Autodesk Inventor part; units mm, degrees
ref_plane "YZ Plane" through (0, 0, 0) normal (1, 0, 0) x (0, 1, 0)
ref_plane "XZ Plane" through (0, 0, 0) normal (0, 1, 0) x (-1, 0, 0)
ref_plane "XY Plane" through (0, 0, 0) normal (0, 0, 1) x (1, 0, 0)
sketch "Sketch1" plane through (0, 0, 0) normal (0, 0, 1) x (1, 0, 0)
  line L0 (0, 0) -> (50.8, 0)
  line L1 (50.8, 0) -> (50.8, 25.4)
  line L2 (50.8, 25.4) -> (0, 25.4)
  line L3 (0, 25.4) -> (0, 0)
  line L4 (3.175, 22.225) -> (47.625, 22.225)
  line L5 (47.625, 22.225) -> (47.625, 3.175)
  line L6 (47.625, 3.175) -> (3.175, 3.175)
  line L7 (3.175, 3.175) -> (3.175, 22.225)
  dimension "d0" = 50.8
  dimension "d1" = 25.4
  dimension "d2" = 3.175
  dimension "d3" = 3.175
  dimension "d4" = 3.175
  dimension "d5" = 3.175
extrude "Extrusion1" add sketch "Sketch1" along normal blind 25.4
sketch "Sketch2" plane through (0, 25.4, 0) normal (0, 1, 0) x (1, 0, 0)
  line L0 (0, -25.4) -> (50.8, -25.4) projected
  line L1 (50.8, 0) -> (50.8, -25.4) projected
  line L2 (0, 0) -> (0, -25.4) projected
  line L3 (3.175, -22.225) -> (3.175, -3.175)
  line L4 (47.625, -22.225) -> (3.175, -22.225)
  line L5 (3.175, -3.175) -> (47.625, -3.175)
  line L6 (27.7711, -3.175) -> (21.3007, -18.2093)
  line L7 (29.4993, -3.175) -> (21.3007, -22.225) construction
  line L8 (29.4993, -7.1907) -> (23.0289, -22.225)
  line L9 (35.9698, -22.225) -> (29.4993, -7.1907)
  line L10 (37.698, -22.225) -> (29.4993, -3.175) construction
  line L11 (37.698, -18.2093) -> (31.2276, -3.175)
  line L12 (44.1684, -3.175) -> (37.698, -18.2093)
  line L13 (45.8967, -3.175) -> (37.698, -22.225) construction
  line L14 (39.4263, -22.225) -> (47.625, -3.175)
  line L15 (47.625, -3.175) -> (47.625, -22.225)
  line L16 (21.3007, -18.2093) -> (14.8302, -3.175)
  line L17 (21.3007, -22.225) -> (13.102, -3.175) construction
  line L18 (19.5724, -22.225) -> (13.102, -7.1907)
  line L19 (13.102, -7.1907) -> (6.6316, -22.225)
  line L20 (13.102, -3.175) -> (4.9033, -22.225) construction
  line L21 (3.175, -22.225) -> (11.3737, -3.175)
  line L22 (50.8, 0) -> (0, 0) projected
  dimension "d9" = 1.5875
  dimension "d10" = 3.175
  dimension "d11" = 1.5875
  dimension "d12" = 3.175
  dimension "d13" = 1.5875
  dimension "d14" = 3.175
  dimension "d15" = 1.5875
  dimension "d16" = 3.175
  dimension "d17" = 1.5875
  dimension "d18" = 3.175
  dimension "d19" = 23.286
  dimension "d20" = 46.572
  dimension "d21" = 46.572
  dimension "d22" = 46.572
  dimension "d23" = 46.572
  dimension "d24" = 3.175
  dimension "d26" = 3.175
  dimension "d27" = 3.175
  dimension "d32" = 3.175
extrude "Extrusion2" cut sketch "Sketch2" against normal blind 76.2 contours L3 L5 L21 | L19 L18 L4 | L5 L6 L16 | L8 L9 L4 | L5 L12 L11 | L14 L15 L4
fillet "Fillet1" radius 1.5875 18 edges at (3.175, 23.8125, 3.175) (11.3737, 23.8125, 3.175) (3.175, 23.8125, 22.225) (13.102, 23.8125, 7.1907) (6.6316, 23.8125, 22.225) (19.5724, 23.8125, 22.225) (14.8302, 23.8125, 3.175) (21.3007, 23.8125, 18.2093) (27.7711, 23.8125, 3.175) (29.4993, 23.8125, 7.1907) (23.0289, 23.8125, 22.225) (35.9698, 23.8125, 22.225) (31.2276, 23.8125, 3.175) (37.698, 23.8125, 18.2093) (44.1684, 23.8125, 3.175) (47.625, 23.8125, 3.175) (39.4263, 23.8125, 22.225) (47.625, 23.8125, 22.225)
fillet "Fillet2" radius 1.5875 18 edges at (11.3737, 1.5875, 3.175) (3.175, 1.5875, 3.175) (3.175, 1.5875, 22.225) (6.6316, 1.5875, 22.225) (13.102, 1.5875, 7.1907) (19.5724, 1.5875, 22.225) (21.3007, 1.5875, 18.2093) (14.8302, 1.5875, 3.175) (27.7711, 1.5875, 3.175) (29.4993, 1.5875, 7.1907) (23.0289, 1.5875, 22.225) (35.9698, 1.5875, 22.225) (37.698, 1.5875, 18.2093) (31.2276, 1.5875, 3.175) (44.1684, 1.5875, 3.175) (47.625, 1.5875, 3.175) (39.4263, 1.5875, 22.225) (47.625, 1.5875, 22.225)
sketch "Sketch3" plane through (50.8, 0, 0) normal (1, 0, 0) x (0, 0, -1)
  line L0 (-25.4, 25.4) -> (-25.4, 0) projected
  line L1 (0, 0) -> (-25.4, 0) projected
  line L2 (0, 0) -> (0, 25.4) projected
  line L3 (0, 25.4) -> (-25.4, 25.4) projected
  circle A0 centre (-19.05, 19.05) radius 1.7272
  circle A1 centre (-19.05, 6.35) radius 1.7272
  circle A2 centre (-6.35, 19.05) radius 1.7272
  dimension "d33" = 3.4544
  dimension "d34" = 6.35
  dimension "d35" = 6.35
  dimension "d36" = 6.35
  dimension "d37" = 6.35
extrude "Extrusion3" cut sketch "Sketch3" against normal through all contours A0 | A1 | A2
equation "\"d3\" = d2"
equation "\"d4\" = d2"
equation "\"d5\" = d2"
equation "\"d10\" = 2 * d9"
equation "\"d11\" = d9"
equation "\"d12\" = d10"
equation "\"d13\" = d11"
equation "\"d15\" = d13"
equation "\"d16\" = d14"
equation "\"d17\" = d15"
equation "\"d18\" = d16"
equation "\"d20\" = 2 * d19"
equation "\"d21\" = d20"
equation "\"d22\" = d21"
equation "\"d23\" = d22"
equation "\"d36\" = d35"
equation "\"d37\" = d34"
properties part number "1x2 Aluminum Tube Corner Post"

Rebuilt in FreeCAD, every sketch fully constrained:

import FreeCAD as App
import Part
import Sketcher
Q = App.Units.Quantity


def edges_at(feature, points):
    """Names of the edges that pass closest to the given points."""
    edges = feature.Shape.Edges
    near = lambda p: min(range(len(edges)), key=lambda i: edges[i].distToShape(Part.Vertex(*p))[0])
    return sorted({f"Edge{near(p) + 1}" for p in points})

doc = App.newDocument("Part")
body = doc.addObject("PartDesign::Body", "Body")

# Sketch on XY plane
sketch1 = body.newObject("Sketcher::SketchObject", "Sketch")
sketch1.AttachmentSupport = (doc.getObject("XY_Plane"), [""])
sketch1.MapMode = "FlatFace"
sketch1.addGeometry([
    Part.LineSegment(App.Vector(0, 25, 0), App.Vector(0, 0, 0)),  # 0
    Part.LineSegment(App.Vector(0, 0, 0), App.Vector(51, 0, 0)),  # 1
    Part.LineSegment(App.Vector(51, 0, 0), App.Vector(51, 25, 0)),  # 2
    Part.LineSegment(App.Vector(51, 25, 0), App.Vector(0, 25, 0)),  # 3
    Part.LineSegment(App.Vector(3, 3, 0), App.Vector(3, 22, 0)),  # 4
    Part.LineSegment(App.Vector(3, 22, 0), App.Vector(48, 22, 0)),  # 5
    Part.LineSegment(App.Vector(48, 22, 0), App.Vector(48, 3, 0)),  # 6
    Part.LineSegment(App.Vector(48, 3, 0), App.Vector(3, 3, 0)),  # 7
], False)
sketch1.addConstraint([
    Sketcher.Constraint("Coincident", 0, 2, 1, 1),
    Sketcher.Constraint("Coincident", 1, 2, 2, 1),
    Sketcher.Constraint("Coincident", 2, 2, 3, 1),
    Sketcher.Constraint("Coincident", 3, 2, 0, 1),
    Sketcher.Constraint("Coincident", 4, 2, 5, 1),
    Sketcher.Constraint("Coincident", 5, 2, 6, 1),
    Sketcher.Constraint("Coincident", 6, 2, 7, 1),
    Sketcher.Constraint("Coincident", 7, 2, 4, 1),
    Sketcher.Constraint("Vertical", 0),
    Sketcher.Constraint("Horizontal", 1),
    Sketcher.Constraint("Vertical", 2),
    Sketcher.Constraint("Horizontal", 3),
    Sketcher.Constraint("Vertical", 4),
    Sketcher.Constraint("Horizontal", 5),
    Sketcher.Constraint("Vertical", 6),
    Sketcher.Constraint("Horizontal", 7),
    Sketcher.Constraint("Coincident", 0, 2, -1, 1),
    Sketcher.Constraint("DistanceX", 1, 1, 1, 2, Q("2 in")),
    Sketcher.Constraint("DistanceY", 0, 2, 0, 1, Q("1 in")),
    Sketcher.Constraint("DistanceX", -1, 1, 4, 2, Q("0.125 in")),
    Sketcher.Constraint("DistanceY", -1, 1, 6, 2, Q("0.125 in")),
    Sketcher.Constraint("DistanceY", 4, 2, 3, 2, Q("0.125 in")),
    Sketcher.Constraint("DistanceX", 5, 2, 2, 2, Q("0.125 in")),
])
pad1 = body.newObject("PartDesign::Pad", "Pad")
pad1.Profile = sketch1
pad1.Length = Q("1 in")

# Sketch on XZ plane
sketch2 = body.newObject("Sketcher::SketchObject", "Sketch001")
sketch2.AttachmentSupport = (doc.getObject("XZ_Plane"), [""])
sketch2.MapMode = "FlatFace"
sketch2.AttachmentOffset = App.Placement(App.Vector(0, 0, -1 * 25.4), App.Rotation())
sketch2.addGeometry([
    Part.LineSegment(App.Vector(3, 3, 0), App.Vector(3, 22, 0)),  # 0
    Part.LineSegment(App.Vector(3, 22, 0), App.Vector(11, 3, 0)),  # 1
    Part.LineSegment(App.Vector(11, 3, 0), App.Vector(3, 3, 0)),  # 2
    Part.LineSegment(App.Vector(13, 7, 0), App.Vector(7, 22, 0)),  # 3
    Part.LineSegment(App.Vector(7, 22, 0), App.Vector(20, 22, 0)),  # 4
    Part.LineSegment(App.Vector(20, 22, 0), App.Vector(13, 7, 0)),  # 5
    Part.LineSegment(App.Vector(28, 3, 0), App.Vector(15, 3, 0)),  # 6
    Part.LineSegment(App.Vector(15, 3, 0), App.Vector(21, 18, 0)),  # 7
    Part.LineSegment(App.Vector(21, 18, 0), App.Vector(28, 3, 0)),  # 8
    Part.LineSegment(App.Vector(29, 7, 0), App.Vector(23, 22, 0)),  # 9
    Part.LineSegment(App.Vector(23, 22, 0), App.Vector(36, 22, 0)),  # 10
    Part.LineSegment(App.Vector(36, 22, 0), App.Vector(29, 7, 0)),  # 11
    Part.LineSegment(App.Vector(44, 3, 0), App.Vector(31, 3, 0)),  # 12
    Part.LineSegment(App.Vector(31, 3, 0), App.Vector(38, 18, 0)),  # 13
    Part.LineSegment(App.Vector(38, 18, 0), App.Vector(44, 3, 0)),  # 14
    Part.LineSegment(App.Vector(48, 3, 0), App.Vector(39, 22, 0)),  # 15
    Part.LineSegment(App.Vector(39, 22, 0), App.Vector(48, 22, 0)),  # 16
    Part.LineSegment(App.Vector(48, 22, 0), App.Vector(48, 3, 0)),  # 17
], False)
sketch2.addConstraint([
    Sketcher.Constraint("Coincident", 0, 2, 1, 1),
    Sketcher.Constraint("Coincident", 1, 2, 2, 1),
    Sketcher.Constraint("Coincident", 2, 2, 0, 1),
    Sketcher.Constraint("Coincident", 3, 2, 4, 1),
    Sketcher.Constraint("Coincident", 4, 2, 5, 1),
    Sketcher.Constraint("Coincident", 5, 2, 3, 1),
    Sketcher.Constraint("Coincident", 6, 2, 7, 1),
    Sketcher.Constraint("Coincident", 7, 2, 8, 1),
    Sketcher.Constraint("Coincident", 8, 2, 6, 1),
    Sketcher.Constraint("Coincident", 9, 2, 10, 1),
    Sketcher.Constraint("Coincident", 10, 2, 11, 1),
    Sketcher.Constraint("Coincident", 11, 2, 9, 1),
    Sketcher.Constraint("Coincident", 12, 2, 13, 1),
    Sketcher.Constraint("Coincident", 13, 2, 14, 1),
    Sketcher.Constraint("Coincident", 14, 2, 12, 1),
    Sketcher.Constraint("Coincident", 15, 2, 16, 1),
    Sketcher.Constraint("Coincident", 16, 2, 17, 1),
    Sketcher.Constraint("Coincident", 17, 2, 15, 1),
    Sketcher.Constraint("Vertical", 0),
    Sketcher.Constraint("Horizontal", 2),
    Sketcher.Constraint("Horizontal", 4),
    Sketcher.Constraint("Horizontal", 6),
    Sketcher.Constraint("Horizontal", 10),
    Sketcher.Constraint("Horizontal", 12),
    Sketcher.Constraint("Horizontal", 16),
    Sketcher.Constraint("Vertical", 17),
    Sketcher.Constraint("Parallel", 1, 3),
    Sketcher.Constraint("Parallel", 5, 7),
    Sketcher.Constraint("Parallel", 3, 8),
    Sketcher.Constraint("Parallel", 8, 9),
    Sketcher.Constraint("Parallel", 7, 11),
    Sketcher.Constraint("Parallel", 11, 13),
    Sketcher.Constraint("Parallel", 9, 14),
    Sketcher.Constraint("Parallel", 14, 15),
    Sketcher.Constraint("Horizontal", 0, 2, 3, 2),
    Sketcher.Constraint("Horizontal", 2, 2, 6, 2),
    Sketcher.Constraint("Horizontal", 4, 2, 9, 2),
    Sketcher.Constraint("Horizontal", 5, 2, 11, 2),
    Sketcher.Constraint("Horizontal", 8, 2, 12, 2),
    Sketcher.Constraint("Horizontal", 7, 2, 13, 2),
    Sketcher.Constraint("Horizontal", 10, 2, 15, 2),
    Sketcher.Constraint("Horizontal", 14, 2, 17, 2),
    Sketcher.Constraint("Equal", 4, 6),
    Sketcher.Constraint("Equal", 3, 5),
    Sketcher.Constraint("DistanceX", -1, 1, 0, 2, Q("0.125 in")),
    Sketcher.Constraint("DistanceY", -1, 1, 1, 2, Q("0.125 in")),
    Sketcher.Constraint("DistanceY", 0, 1, 0, 2, Q("0.75 in")),
    Sketcher.Constraint("DistanceX", -1, 1, 16, 2, Q("1.875 in")),
    Sketcher.Constraint("Distance", 1, Q("0.8165 in")),
    Sketcher.Constraint("Distance", 3, Q("0.6444 in")),
    Sketcher.Constraint("DistanceX", -1, 1, 7, 2, Q("0.8386 in")),
    Sketcher.Constraint("DistanceX", -1, 1, 11, 2, Q("1.1614 in")),
    Sketcher.Constraint("DistanceX", 3, 2, 1, 2, Q("0.1867 in")),
    Sketcher.Constraint("DistanceX", 5, 2, 12, 2, Q("0.7136 in")),
])
pocket1 = body.newObject("PartDesign::Pocket", "Pocket")
pocket1.Profile = sketch2
pocket1.Length = Q("3 in")
pocket1.Reversed = True
doc.recompute()

fillet = body.newObject("PartDesign::Fillet", "Fillet")
fillet.Base = (pocket1, edges_at(pocket1, [
    (3.175, 23.812, 3.175),
    (11.374, 23.812, 3.175),
    (3.175, 23.812, 22.225),
    (13.102, 23.812, 7.191),
    (6.632, 23.812, 22.225),
    (19.572, 23.812, 22.225),
    (14.83, 23.812, 3.175),
    (21.301, 23.812, 18.209),
    (27.771, 23.812, 3.175),
    (29.499, 23.812, 7.191),
    (23.029, 23.812, 22.225),
    (35.97, 23.812, 22.225),
    (31.228, 23.812, 3.175),
    (37.698, 23.812, 18.209),
    (44.168, 23.812, 3.175),
    (47.625, 23.812, 3.175),
    (39.426, 23.812, 22.225),
    (47.625, 23.812, 22.225),
]))
fillet.Radius = Q("0.0625 in")
doc.recompute()

fillet2 = body.newObject("PartDesign::Fillet", "Fillet001")
fillet2.Base = (fillet, edges_at(fillet, [
    (11.374, 1.587, 3.175),
    (3.175, 1.587, 3.175),
    (3.175, 1.587, 22.225),
    (6.632, 1.587, 22.225),
    (13.102, 1.587, 7.191),
    (19.572, 1.587, 22.225),
    (21.301, 1.587, 18.209),
    (14.83, 1.587, 3.175),
    (27.771, 1.587, 3.175),
    (29.499, 1.587, 7.191),
    (23.029, 1.587, 22.225),
    (35.97, 1.587, 22.225),
    (37.698, 1.587, 18.209),
    (31.228, 1.587, 3.175),
    (44.168, 1.587, 3.175),
    (47.625, 1.587, 3.175),
    (39.426, 1.587, 22.225),
    (47.625, 1.587, 22.225),
]))
fillet2.Radius = Q("0.0625 in")

# Sketch on YZ plane
sketch3 = body.newObject("Sketcher::SketchObject", "Sketch002")
sketch3.AttachmentSupport = (doc.getObject("YZ_Plane"), [""])
sketch3.MapMode = "FlatFace"
sketch3.AttachmentOffset = App.Placement(App.Vector(0, 0, 2 * 25.4), App.Rotation())
sketch3.addGeometry([
    Part.Circle(App.Vector(19.1, 19.1, 0), App.Vector(0, 0, 1), 1.7),
    Part.Circle(App.Vector(6.3, 19.1, 0), App.Vector(0, 0, 1), 1.7),
    Part.Circle(App.Vector(19.1, 6.3, 0), App.Vector(0, 0, 1), 1.7),
], False)
sketch3.addConstraint([
    Sketcher.Constraint("Equal", 0, 1),
    Sketcher.Constraint("Equal", 1, 2),
    Sketcher.Constraint("Horizontal", 0, 3, 1, 3),
    Sketcher.Constraint("Vertical", 0, 3, 2, 3),
    Sketcher.Constraint("Diameter", 0, Q("0.136 in")),
    Sketcher.Constraint("DistanceX", -1, 1, 1, 3, Q("0.25 in")),
    Sketcher.Constraint("DistanceY", -1, 1, 2, 3, Q("0.25 in")),
    Sketcher.Constraint("DistanceX", 1, 3, 0, 3, Q("0.5 in")),
    Sketcher.Constraint("DistanceY", 2, 3, 0, 3, Q("0.5 in")),
])
pocket2 = body.newObject("PartDesign::Pocket", "Pocket001")
pocket2.Profile = sketch3
pocket2.Type = "ThroughAll"

doc.recompute()
